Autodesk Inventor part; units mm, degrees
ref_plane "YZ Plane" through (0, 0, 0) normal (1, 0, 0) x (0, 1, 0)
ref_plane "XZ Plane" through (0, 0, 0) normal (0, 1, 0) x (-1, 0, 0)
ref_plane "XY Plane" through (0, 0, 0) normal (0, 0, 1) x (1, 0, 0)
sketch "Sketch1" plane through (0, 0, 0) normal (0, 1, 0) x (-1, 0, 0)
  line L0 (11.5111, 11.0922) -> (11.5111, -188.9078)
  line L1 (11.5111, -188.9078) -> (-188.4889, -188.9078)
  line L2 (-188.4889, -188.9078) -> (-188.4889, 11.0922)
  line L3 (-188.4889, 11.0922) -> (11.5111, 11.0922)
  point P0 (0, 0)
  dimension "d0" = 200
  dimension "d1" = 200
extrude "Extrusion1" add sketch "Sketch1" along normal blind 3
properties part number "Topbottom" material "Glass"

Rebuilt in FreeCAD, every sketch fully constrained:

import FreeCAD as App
import Part
import Sketcher
Q = App.Units.Quantity


def add_polygon(sketch, points):
    """Adds a closed chain of lines whose ends are joined by coincident constraints."""
    first, n = sketch.GeometryCount, len(points)
    for a, b in zip(points, points[1:] + points[:1]):
        sketch.addGeometry(Part.LineSegment(App.Vector(*a, 0), App.Vector(*b, 0)), False)
    for i in range(n):
        sketch.addConstraint(Sketcher.Constraint("Coincident", first + i, 2, first + (i + 1) % n, 1))

doc = App.newDocument("Part")
params = doc.addObject("Spreadsheet::Sheet", "Params")
for row, (alias, value) in enumerate([
    ("sketch1_width", "200 mm"),
    ("pad1_length", "3 mm"),
], start=1):
    params.set(f"A{row}", alias)
    params.set(f"B{row}", "=" + value)
    params.setAlias(f"B{row}", alias)

body = doc.addObject("PartDesign::Body", "Body")

# Sketch on XZ plane
sketch1 = body.newObject("Sketcher::SketchObject", "Sketch")
sketch1.AttachmentSupport = (doc.getObject("XZ_Plane"), [""])
sketch1.MapMode = "FlatFace"
add_polygon(sketch1, [(-12, -189), (-12, 11), (188, 11), (188, -189)])  # lines 0-3
sketch1.addConstraint([
    Sketcher.Constraint("Vertical", 0),
    Sketcher.Constraint("Horizontal", 1),
    Sketcher.Constraint("Vertical", 2),
    Sketcher.Constraint("Horizontal", 3),
    Sketcher.Constraint("Equal", 3, 0),
    Sketcher.Constraint("DistanceX", 1, 1, 1, 2, Q("200 mm")),
    Sketcher.Constraint("DistanceX", 0, 2, -1, 1, Q("11.511 mm")),
    Sketcher.Constraint("DistanceY", -1, 1, 0, 2, Q("11.0922 mm")),
])
sketch1.setExpression("Constraints[9]", "Params.sketch1_width")
pad1 = body.newObject("PartDesign::Pad", "Pad")
pad1.Profile = sketch1
pad1.setExpression("Length", "Params.pad1_length")
pad1.Reversed = True

doc.recompute()
